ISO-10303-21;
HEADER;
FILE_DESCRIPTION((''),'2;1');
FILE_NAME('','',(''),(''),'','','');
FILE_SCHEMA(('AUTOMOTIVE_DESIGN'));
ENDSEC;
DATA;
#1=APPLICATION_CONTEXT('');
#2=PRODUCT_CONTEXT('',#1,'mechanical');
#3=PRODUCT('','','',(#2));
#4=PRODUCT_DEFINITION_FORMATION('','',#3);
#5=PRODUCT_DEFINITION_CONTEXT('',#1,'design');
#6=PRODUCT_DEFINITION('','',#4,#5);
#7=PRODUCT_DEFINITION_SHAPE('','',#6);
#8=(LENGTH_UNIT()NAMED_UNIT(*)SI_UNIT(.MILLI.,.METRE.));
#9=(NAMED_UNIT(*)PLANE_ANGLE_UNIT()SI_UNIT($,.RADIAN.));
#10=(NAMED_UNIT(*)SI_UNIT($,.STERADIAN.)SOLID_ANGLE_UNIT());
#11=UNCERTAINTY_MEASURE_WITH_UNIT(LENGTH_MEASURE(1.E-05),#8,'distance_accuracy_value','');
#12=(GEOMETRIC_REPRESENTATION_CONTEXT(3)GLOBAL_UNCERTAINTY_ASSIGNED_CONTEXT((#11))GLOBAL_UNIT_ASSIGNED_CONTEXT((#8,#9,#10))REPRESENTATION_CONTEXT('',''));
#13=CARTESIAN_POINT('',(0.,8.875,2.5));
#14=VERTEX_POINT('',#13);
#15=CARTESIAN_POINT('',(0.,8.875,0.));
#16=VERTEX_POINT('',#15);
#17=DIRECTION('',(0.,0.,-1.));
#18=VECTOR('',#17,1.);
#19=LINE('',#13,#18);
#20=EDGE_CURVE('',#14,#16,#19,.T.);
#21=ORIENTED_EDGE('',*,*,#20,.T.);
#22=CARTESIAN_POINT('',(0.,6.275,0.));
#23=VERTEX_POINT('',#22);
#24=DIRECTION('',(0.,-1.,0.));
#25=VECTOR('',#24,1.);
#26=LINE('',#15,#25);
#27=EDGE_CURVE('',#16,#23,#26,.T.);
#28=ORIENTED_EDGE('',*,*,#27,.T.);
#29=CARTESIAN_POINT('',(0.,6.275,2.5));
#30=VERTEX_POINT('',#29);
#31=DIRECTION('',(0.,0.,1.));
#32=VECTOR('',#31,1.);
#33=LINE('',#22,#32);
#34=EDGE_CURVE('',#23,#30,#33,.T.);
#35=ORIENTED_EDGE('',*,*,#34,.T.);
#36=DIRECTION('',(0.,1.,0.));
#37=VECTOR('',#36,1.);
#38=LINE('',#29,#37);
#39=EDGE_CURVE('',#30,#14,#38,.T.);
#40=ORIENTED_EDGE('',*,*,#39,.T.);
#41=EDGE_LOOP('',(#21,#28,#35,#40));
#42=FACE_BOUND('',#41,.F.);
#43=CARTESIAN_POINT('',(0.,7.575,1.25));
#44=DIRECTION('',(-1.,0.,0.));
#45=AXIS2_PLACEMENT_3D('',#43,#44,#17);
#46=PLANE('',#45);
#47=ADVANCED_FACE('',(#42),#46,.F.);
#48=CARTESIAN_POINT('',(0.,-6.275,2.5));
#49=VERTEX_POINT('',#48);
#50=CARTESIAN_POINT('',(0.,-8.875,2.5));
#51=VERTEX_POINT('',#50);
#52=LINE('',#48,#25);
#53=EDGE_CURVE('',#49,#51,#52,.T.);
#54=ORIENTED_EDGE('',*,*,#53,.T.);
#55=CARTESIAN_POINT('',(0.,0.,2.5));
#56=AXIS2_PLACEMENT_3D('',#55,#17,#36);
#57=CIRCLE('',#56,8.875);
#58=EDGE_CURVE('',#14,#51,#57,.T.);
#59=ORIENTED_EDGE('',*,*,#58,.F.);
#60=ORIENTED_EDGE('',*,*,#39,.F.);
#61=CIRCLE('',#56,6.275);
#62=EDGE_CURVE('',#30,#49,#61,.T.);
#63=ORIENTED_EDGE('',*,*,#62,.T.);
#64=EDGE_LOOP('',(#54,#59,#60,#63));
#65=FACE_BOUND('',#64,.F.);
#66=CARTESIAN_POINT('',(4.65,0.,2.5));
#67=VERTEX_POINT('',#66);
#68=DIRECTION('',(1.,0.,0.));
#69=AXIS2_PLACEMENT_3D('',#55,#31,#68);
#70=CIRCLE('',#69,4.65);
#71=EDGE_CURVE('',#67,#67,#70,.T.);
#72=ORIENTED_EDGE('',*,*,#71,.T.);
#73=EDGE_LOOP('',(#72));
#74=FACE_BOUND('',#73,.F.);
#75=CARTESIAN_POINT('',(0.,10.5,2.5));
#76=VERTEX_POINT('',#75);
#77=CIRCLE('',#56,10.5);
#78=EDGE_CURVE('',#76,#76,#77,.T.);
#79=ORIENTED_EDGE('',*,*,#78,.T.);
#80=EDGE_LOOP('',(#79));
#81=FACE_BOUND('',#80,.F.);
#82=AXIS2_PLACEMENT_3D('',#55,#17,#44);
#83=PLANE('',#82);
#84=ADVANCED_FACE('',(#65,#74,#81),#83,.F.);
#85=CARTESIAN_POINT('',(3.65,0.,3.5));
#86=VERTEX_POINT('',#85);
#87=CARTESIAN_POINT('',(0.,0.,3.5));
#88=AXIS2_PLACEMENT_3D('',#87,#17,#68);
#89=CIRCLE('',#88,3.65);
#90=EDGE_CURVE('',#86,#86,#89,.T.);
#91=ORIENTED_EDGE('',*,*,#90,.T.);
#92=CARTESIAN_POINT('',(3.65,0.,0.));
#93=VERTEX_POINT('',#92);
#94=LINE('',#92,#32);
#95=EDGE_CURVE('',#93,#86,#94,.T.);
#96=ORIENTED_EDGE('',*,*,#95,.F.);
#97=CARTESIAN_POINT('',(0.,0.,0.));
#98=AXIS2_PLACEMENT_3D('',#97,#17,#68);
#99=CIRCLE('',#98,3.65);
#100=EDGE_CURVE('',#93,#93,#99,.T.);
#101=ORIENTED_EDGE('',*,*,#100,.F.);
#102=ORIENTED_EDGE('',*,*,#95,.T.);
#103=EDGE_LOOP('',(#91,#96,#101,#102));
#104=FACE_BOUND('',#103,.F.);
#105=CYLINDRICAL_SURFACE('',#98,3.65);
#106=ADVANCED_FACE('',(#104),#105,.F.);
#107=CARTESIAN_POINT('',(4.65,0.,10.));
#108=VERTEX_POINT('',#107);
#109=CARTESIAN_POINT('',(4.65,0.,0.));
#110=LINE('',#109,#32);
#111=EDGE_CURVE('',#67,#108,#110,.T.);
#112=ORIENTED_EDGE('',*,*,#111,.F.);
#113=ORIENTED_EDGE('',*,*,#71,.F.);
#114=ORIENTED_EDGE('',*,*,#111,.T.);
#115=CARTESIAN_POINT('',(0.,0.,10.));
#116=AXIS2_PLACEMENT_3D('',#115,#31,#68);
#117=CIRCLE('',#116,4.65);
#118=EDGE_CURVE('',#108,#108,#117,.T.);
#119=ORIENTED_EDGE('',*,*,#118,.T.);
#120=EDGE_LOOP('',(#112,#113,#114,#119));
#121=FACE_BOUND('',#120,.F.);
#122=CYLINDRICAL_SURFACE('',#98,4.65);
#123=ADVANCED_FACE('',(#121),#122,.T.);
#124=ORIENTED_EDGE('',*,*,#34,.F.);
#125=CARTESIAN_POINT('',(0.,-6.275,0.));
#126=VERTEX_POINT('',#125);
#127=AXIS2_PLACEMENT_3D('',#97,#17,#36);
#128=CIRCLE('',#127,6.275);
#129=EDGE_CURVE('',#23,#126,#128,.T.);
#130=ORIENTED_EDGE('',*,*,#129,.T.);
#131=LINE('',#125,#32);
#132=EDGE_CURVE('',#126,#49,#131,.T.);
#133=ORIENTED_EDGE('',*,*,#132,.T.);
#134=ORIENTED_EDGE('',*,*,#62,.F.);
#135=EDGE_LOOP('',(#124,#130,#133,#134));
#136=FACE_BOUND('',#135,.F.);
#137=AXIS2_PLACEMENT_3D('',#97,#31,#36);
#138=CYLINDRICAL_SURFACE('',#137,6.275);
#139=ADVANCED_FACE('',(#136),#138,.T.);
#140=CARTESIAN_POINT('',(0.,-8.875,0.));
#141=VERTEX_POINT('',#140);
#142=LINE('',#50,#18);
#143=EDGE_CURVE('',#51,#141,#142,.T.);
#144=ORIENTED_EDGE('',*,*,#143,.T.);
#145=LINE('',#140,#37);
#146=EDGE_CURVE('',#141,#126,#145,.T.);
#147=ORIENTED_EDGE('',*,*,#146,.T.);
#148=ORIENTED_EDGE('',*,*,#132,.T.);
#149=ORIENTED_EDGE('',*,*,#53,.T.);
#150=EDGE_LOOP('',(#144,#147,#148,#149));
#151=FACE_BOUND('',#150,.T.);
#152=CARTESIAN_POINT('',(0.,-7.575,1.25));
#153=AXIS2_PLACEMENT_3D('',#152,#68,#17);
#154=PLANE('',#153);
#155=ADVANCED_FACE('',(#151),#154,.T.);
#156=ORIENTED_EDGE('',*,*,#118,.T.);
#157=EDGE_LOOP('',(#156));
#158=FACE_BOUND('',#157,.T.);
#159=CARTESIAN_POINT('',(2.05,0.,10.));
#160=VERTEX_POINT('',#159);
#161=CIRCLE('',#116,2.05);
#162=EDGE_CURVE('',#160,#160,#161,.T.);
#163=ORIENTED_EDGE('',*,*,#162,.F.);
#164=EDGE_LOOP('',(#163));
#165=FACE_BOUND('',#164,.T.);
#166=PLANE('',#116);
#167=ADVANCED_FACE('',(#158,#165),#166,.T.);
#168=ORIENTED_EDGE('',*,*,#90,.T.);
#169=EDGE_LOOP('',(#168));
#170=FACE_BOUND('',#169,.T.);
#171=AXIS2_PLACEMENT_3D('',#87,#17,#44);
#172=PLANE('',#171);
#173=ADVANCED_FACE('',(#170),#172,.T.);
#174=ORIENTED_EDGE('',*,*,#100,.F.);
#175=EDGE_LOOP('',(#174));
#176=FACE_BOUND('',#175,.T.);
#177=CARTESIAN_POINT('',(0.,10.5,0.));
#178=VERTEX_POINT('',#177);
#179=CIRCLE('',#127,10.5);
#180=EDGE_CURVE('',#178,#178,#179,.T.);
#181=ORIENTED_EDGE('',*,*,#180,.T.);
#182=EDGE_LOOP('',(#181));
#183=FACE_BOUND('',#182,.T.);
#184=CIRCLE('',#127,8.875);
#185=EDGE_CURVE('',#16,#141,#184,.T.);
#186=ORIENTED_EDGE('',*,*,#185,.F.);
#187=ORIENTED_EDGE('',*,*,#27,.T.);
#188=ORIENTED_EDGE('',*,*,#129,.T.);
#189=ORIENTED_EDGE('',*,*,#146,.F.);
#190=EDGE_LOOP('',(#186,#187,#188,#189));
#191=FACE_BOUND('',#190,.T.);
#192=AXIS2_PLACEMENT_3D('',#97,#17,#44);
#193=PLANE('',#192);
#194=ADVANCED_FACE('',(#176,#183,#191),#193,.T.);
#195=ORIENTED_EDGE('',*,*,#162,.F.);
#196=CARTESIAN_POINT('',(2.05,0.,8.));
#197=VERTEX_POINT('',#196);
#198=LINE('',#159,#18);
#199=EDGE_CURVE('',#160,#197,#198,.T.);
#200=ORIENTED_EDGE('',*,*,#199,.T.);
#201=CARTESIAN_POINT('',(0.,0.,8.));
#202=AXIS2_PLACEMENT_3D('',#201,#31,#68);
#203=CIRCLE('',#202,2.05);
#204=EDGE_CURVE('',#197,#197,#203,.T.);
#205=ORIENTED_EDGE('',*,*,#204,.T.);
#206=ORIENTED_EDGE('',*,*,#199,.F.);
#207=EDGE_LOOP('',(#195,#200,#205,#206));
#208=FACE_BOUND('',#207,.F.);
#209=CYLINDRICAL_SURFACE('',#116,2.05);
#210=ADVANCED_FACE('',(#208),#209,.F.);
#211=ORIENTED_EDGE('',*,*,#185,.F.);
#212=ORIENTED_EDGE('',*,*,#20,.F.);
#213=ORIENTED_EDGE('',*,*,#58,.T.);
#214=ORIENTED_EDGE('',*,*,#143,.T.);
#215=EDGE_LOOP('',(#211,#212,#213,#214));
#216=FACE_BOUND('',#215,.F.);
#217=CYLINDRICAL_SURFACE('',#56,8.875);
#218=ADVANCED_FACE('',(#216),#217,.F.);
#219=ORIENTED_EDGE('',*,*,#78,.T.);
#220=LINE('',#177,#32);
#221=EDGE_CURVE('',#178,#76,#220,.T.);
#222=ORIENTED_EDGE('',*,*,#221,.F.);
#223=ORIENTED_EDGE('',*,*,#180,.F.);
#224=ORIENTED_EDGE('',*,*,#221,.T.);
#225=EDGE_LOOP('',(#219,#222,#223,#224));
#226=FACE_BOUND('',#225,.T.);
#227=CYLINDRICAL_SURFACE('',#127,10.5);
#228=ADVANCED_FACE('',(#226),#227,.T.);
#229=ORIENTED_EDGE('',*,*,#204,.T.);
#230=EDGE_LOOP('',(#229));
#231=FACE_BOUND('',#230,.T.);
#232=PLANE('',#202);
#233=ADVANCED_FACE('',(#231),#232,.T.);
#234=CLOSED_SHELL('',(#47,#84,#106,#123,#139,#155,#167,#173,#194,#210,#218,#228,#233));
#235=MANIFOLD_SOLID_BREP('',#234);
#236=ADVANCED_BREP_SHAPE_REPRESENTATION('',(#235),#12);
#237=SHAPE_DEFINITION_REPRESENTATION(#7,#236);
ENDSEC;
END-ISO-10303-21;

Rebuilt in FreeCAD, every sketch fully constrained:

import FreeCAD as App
import Part
import Sketcher


def add_polygon(sketch, points):
    """Adds a closed chain of lines whose ends are joined by coincident constraints."""
    first, n = sketch.GeometryCount, len(points)
    for a, b in zip(points, points[1:] + points[:1]):
        sketch.addGeometry(Part.LineSegment(App.Vector(*a, 0), App.Vector(*b, 0)), False)
    for i in range(n):
        sketch.addConstraint(Sketcher.Constraint("Coincident", first + i, 2, first + (i + 1) % n, 1))

doc = App.newDocument("Part")
params = doc.addObject("Spreadsheet::Sheet", "Params")
for row, (alias, value) in enumerate([
    ("sketch1_diameter", "9.3 mm"),
    ("pad1_length", "10 mm"),
    ("sketch2_diameter", "4.1 mm"),
    ("pocket1_length", "2 mm"),
    ("sketch3_diameter", "7.3 mm"),
    ("pocket2_length", "3.5 mm"),
    ("sketch4_diameter", "21 mm"),
    ("sketch4_diameter2", "9.3 mm"),
    ("pad2_length", "2.5 mm"),
    ("sketch5_width", "2.6 mm"),
    ("sketch5_height", "2.5 mm"),
    ("groove_angle", "180 deg"),
], start=1):
    params.set(f"A{row}", alias)
    params.set(f"B{row}", "=" + value)
    params.setAlias(f"B{row}", alias)

body = doc.addObject("PartDesign::Body", "Body")

sketch1 = body.newObject("Sketcher::SketchObject", "Sketch")
sketch1.AttachmentSupport = (doc.getObject("XY_Plane"), [""])
sketch1.MapMode = "FlatFace"
sketch1.addGeometry(Part.Circle(App.Vector(0, 0, 0), App.Vector(0, 0, 1), 4.7), False)
sketch1.addConstraint(Sketcher.Constraint("Coincident", 0, 3, -1, 1))
sketch1.addConstraint(Sketcher.Constraint("Diameter", 0, 9.3))
sketch1.setExpression("Constraints[1]", "Params.sketch1_diameter")
pad1 = body.newObject("PartDesign::Pad", "Pad")
pad1.Profile = sketch1
pad1.setExpression("Length", "Params.pad1_length")

sketch2 = body.newObject("Sketcher::SketchObject", "Sketch001")
sketch2.AttachmentSupport = (doc.getObject("XY_Plane"), [""])
sketch2.MapMode = "FlatFace"
sketch2.AttachmentOffset = App.Placement(App.Vector(0, 0, 10), App.Rotation())
sketch2.addGeometry(Part.Circle(App.Vector(0, 0, 0), App.Vector(0, 0, 1), 2), False)
sketch2.addConstraint(Sketcher.Constraint("Coincident", 0, 3, -1, 1))
sketch2.addConstraint(Sketcher.Constraint("Diameter", 0, 4.1))
sketch2.setExpression("Constraints[1]", "Params.sketch2_diameter")
pocket1 = body.newObject("PartDesign::Pocket", "Pocket")
pocket1.Profile = sketch2
pocket1.setExpression("Length", "Params.pocket1_length")

sketch3 = body.newObject("Sketcher::SketchObject", "Sketch002")
sketch3.AttachmentSupport = (doc.getObject("XY_Plane"), [""])
sketch3.MapMode = "FlatFace"
sketch3.addGeometry(Part.Circle(App.Vector(0, 0, 0), App.Vector(0, 0, 1), 3.6), False)
sketch3.addConstraint(Sketcher.Constraint("Coincident", 0, 3, -1, 1))
sketch3.addConstraint(Sketcher.Constraint("Diameter", 0, 7.3))
sketch3.setExpression("Constraints[1]", "Params.sketch3_diameter")
pocket2 = body.newObject("PartDesign::Pocket", "Pocket001")
pocket2.Profile = sketch3
pocket2.setExpression("Length", "Params.pocket2_length")
pocket2.Reversed = True

sketch4 = body.newObject("Sketcher::SketchObject", "Sketch003")
sketch4.AttachmentSupport = (doc.getObject("XY_Plane"), [""])
sketch4.MapMode = "FlatFace"
sketch4.addGeometry(Part.Circle(App.Vector(0, 0, 0), App.Vector(0, 0, 1), 10.5), False)
sketch4.addGeometry(Part.Circle(App.Vector(0, 0, 0), App.Vector(0, 0, 1), 4.7), False)
sketch4.addConstraint(Sketcher.Constraint("Coincident", 0, 3, -1, 1))
sketch4.addConstraint(Sketcher.Constraint("Coincident", 1, 3, -1, 1))
sketch4.addConstraint(Sketcher.Constraint("Diameter", 0, 21.0))
sketch4.addConstraint(Sketcher.Constraint("Diameter", 1, 9.3))
sketch4.setExpression("Constraints[2]", "Params.sketch4_diameter")
sketch4.setExpression("Constraints[3]", "Params.sketch4_diameter2")
pad2 = body.newObject("PartDesign::Pad", "Pad001")
pad2.Profile = sketch4
pad2.setExpression("Length", "Params.pad2_length")

sketch5 = body.newObject("Sketcher::SketchObject", "Sketch004")
sketch5.AttachmentSupport = (doc.getObject("YZ_Plane"), [""])
sketch5.MapMode = "FlatFace"
add_polygon(sketch5, [(6.3, 0), (8.9, 0), (8.9, 2.5), (6.3, 2.5)])
sketch5.addConstraint(Sketcher.Constraint("Horizontal", 0))
sketch5.addConstraint(Sketcher.Constraint("Vertical", 1))
sketch5.addConstraint(Sketcher.Constraint("Horizontal", 2))
sketch5.addConstraint(Sketcher.Constraint("Vertical", 3))
sketch5.addConstraint(Sketcher.Constraint("PointOnObject", 0, 2, -1))
sketch5.addConstraint(Sketcher.Constraint("DistanceX", 0, 1, 0, 2, 2.6))
sketch5.addConstraint(Sketcher.Constraint("DistanceY", 1, 1, 1, 2, 2.5))
sketch5.addConstraint(Sketcher.Constraint("DistanceX", -1, 1, 0, 2, 8.875))
sketch5.setExpression("Constraints[9]", "Params.sketch5_width")
sketch5.setExpression("Constraints[10]", "Params.sketch5_height")
groove = body.newObject("PartDesign::Groove", "Groove")
groove.Profile = sketch5
groove.ReferenceAxis = (sketch5, ["V_Axis"])
groove.setExpression("Angle", "Params.groove_angle")
groove.Reversed = True

doc.recompute()
